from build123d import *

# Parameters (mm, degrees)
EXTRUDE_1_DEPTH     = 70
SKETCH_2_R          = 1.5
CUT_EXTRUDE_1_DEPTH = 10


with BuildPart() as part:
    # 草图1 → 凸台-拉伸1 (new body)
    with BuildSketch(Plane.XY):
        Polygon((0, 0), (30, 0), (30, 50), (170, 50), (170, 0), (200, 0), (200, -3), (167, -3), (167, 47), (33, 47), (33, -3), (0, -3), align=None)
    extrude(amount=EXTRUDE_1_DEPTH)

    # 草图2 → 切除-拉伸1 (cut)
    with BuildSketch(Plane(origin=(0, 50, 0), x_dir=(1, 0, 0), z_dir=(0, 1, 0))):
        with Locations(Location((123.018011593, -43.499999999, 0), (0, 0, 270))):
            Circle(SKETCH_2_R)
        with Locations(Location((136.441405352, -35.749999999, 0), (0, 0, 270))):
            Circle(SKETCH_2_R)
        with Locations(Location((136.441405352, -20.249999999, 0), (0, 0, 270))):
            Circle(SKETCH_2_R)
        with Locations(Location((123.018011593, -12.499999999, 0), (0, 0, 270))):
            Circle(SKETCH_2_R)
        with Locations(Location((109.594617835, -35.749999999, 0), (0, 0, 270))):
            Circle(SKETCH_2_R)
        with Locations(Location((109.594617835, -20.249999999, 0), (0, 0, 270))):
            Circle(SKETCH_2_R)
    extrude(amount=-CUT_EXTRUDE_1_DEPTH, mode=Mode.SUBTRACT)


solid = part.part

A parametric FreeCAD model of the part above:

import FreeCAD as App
import Part
import Sketcher
Q = App.Units.Quantity


def add_polygon(sketch, points):
    """Adds a closed chain of lines whose ends are joined by coincident constraints."""
    first, n = sketch.GeometryCount, len(points)
    for a, b in zip(points, points[1:] + points[:1]):
        sketch.addGeometry(Part.LineSegment(App.Vector(*a, 0), App.Vector(*b, 0)), False)
    for i in range(n):
        sketch.addConstraint(Sketcher.Constraint("Coincident", first + i, 2, first + (i + 1) % n, 1))

doc = App.newDocument("Part")
body = doc.addObject("PartDesign::Body", "Body")

sketch1 = body.newObject("Sketcher::SketchObject", "Sketch")
sketch1.AttachmentSupport = (doc.getObject("XY_Plane"), [""])
sketch1.MapMode = "FlatFace"
add_polygon(sketch1, [(30, 0), (0, 0), (0, -3), (33, -3), (33, 47), (167, 47), (167, -3), (200, -3), (200, 0), (170, 0), (170, 50), (30, 50)])
sketch1.addConstraint(Sketcher.Constraint("Horizontal", 0))
sketch1.addConstraint(Sketcher.Constraint("Vertical", 1))
sketch1.addConstraint(Sketcher.Constraint("Horizontal", 2))
sketch1.addConstraint(Sketcher.Constraint("Vertical", 3))
sketch1.addConstraint(Sketcher.Constraint("Horizontal", 4))
sketch1.addConstraint(Sketcher.Constraint("Vertical", 5))
sketch1.addConstraint(Sketcher.Constraint("Horizontal", 6))
sketch1.addConstraint(Sketcher.Constraint("Vertical", 7))
sketch1.addConstraint(Sketcher.Constraint("Horizontal", 8))
sketch1.addConstraint(Sketcher.Constraint("Vertical", 9))
sketch1.addConstraint(Sketcher.Constraint("Horizontal", 10))
sketch1.addConstraint(Sketcher.Constraint("Vertical", 11))
sketch1.addConstraint(Sketcher.Constraint("Coincident", 0, 2, -1, 1))
sketch1.addConstraint(Sketcher.Constraint("PointOnObject", 7, 2, -1))
sketch1.addConstraint(Sketcher.Constraint("Horizontal", 2, 2, 5, 2))
sketch1.addConstraint(Sketcher.Constraint("Equal", 2, 6))
sketch1.addConstraint(Sketcher.Constraint("Equal", 0, 8))
sketch1.addConstraint(Sketcher.Constraint("Equal", 5, 9))
sketch1.addConstraint(Sketcher.Constraint("DistanceX", 0, 2, 0, 1, Q("30 mm")))
sketch1.addConstraint(Sketcher.Constraint("DistanceX", 2, 1, 2, 2, Q("33 mm")))
sketch1.addConstraint(Sketcher.Constraint("DistanceX", 4, 1, 4, 2, Q("134 mm")))
sketch1.addConstraint(Sketcher.Constraint("DistanceY", 1, 2, 1, 1, Q("3 mm")))
sketch1.addConstraint(Sketcher.Constraint("DistanceY", 3, 1, 3, 2, Q("50 mm")))
pad1 = body.newObject("PartDesign::Pad", "Pad")
pad1.Profile = sketch1
pad1.Length = 70

sketch2 = body.newObject("Sketcher::SketchObject", "Sketch001")
sketch2.AttachmentSupport = (doc.getObject("XZ_Plane"), [""])
sketch2.MapMode = "FlatFace"
sketch2.AttachmentOffset = App.Placement(App.Vector(0, 0, -50), App.Rotation())
sketch2.addGeometry(Part.Circle(App.Vector(123, 43.5, 0), App.Vector(0, 0, 1), 1.5), False)
sketch2.addGeometry(Part.Circle(App.Vector(136.4, 35.7, 0), App.Vector(0, 0, 1), 1.5), False)
sketch2.addGeometry(Part.Circle(App.Vector(136.4, 20.2, 0), App.Vector(0, 0, 1), 1.5), False)
sketch2.addGeometry(Part.Circle(App.Vector(123, 12.5, 0), App.Vector(0, 0, 1), 1.5), False)
sketch2.addGeometry(Part.Circle(App.Vector(109.6, 35.7, 0), App.Vector(0, 0, 1), 1.5), False)
sketch2.addGeometry(Part.Circle(App.Vector(109.6, 20.2, 0), App.Vector(0, 0, 1), 1.5), False)
sketch2.addConstraint(Sketcher.Constraint("Equal", 0, 1))
sketch2.addConstraint(Sketcher.Constraint("Equal", 1, 2))
sketch2.addConstraint(Sketcher.Constraint("Equal", 2, 3))
sketch2.addConstraint(Sketcher.Constraint("Equal", 3, 4))
sketch2.addConstraint(Sketcher.Constraint("Equal", 4, 5))
sketch2.addConstraint(Sketcher.Constraint("Horizontal", 1, 3, 4, 3))
sketch2.addConstraint(Sketcher.Constraint("Horizontal", 2, 3, 5, 3))
sketch2.addConstraint(Sketcher.Constraint("Vertical", 1, 3, 2, 3))
sketch2.addConstraint(Sketcher.Constraint("Vertical", 0, 3, 3, 3))
sketch2.addConstraint(Sketcher.Constraint("Vertical", 4, 3, 5, 3))
sketch2.addConstraint(Sketcher.Constraint("Diameter", 0, Q("3 mm")))
sketch2.addConstraint(Sketcher.Constraint("DistanceY", 3, 3, 0, 3, Q("31 mm")))
sketch2.addConstraint(Sketcher.Constraint("DistanceY", -1, 1, 0, 3, Q("43.5 mm")))
sketch2.addConstraint(Sketcher.Constraint("DistanceY", 2, 3, 1, 3, Q("15.5 mm")))
sketch2.addConstraint(Sketcher.Constraint("DistanceY", -1, 1, 1, 3, Q("35.75 mm")))
sketch2.addConstraint(Sketcher.Constraint("DistanceX", -1, 1, 0, 3, Q("123.018012 mm")))
sketch2.addConstraint(Sketcher.Constraint("DistanceX", -1, 1, 1, 3, Q("136.441405 mm")))
sketch2.addConstraint(Sketcher.Constraint("DistanceX", -1, 1, 4, 3, Q("109.594618 mm")))
pocket1 = body.newObject("PartDesign::Pocket", "Pocket")
pocket1.Profile = sketch2
pocket1.Length = 10
pocket1.Reversed = True

doc.recompute()
